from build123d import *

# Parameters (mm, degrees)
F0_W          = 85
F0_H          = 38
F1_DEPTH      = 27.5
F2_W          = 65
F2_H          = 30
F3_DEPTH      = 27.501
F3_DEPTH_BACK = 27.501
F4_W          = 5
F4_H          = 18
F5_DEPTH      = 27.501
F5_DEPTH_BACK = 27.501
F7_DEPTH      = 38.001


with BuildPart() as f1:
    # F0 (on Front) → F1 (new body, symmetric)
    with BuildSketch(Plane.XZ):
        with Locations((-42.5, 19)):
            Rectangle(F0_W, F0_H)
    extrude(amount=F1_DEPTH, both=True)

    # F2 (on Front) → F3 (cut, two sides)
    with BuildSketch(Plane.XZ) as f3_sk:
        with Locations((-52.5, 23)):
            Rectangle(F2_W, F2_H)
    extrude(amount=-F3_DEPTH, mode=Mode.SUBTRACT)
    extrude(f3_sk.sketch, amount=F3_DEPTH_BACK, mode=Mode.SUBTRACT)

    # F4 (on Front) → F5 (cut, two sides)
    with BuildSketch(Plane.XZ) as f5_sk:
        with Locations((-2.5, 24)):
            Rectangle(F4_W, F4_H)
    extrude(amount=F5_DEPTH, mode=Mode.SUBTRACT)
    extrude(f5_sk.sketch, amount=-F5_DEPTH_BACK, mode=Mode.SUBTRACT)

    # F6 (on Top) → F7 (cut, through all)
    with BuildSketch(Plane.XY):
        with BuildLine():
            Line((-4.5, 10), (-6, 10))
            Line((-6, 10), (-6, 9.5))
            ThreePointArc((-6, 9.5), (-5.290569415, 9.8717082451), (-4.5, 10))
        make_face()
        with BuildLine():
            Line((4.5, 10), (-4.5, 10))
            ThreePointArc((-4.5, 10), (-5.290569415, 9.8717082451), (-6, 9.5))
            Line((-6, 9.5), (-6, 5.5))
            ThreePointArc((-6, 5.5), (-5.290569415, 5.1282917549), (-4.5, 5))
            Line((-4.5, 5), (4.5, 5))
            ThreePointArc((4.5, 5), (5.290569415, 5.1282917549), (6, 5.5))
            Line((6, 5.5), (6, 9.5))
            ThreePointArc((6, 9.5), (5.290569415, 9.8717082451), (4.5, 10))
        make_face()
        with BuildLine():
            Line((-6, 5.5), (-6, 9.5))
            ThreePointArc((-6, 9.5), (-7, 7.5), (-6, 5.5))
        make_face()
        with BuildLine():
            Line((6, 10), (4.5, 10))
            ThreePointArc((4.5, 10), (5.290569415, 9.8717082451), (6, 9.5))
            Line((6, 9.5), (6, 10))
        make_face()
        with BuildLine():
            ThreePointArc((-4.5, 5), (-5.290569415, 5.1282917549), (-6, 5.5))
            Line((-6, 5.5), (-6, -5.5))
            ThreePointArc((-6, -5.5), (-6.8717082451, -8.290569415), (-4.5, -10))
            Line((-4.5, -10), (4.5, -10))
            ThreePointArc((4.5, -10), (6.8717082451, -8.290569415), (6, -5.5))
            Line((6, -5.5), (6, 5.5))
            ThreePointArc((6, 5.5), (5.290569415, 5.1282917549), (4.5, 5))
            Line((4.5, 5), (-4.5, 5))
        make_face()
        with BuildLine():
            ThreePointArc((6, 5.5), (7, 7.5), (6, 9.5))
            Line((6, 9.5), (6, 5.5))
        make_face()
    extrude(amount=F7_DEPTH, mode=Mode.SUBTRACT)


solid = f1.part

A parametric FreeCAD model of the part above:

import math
import FreeCAD as App
import Part
import Sketcher
from FreeCAD import Vector


def add_polygon(sketch, points):
    """Adds a closed chain of lines whose ends are joined by coincident constraints."""
    first, n = sketch.GeometryCount, len(points)
    for a, b in zip(points, points[1:] + points[:1]):
        sketch.addGeometry(Part.LineSegment(App.Vector(*a, 0), App.Vector(*b, 0)), False)
    for i in range(n):
        sketch.addConstraint(Sketcher.Constraint("Coincident", first + i, 2, first + (i + 1) % n, 1))

doc = App.newDocument("Part")
params = doc.addObject("Spreadsheet::Sheet", "Params")
for row, (alias, value) in enumerate([
    ("sketch1_width", "85 mm"),
    ("sketch1_height", "38 mm"),
    ("pad1_length", "55 mm"),
    ("sketch2_width", "65 mm"),
    ("sketch2_height", "30 mm"),
    ("sketch3_width", "5 mm"),
    ("sketch3_height", "18 mm"),
    ("sketch4_radius", "2.5 mm"),
    ("sketch4_width", "9 mm"),
    ("sketch4_width2", "12 mm"),
    ("sketch4_height", "11 mm"),
    ("sketch4_height2", "0.5 mm"),
], start=1):
    params.set(f"A{row}", alias)
    params.set(f"B{row}", "=" + value)
    params.setAlias(f"B{row}", alias)

body = doc.addObject("PartDesign::Body", "Body")

# Sketch on XZ plane
sketch1 = body.newObject("Sketcher::SketchObject", "Sketch")
sketch1.AttachmentSupport = (doc.getObject("XZ_Plane"), [""])
sketch1.MapMode = "FlatFace"
add_polygon(sketch1, [(-85, 38), (-85, 0), (0, 0), (0, 38)])  # lines 0-3
sketch1.addConstraint([
    Sketcher.Constraint("Vertical", 0),
    Sketcher.Constraint("Horizontal", 1),
    Sketcher.Constraint("Vertical", 2),
    Sketcher.Constraint("Horizontal", 3),
    Sketcher.Constraint("Coincident", 1, 2, -1, 1),
    Sketcher.Constraint("DistanceX", 1, 1, 1, 2, 85.0),
    Sketcher.Constraint("DistanceY", 0, 2, 0, 1, 38.0),
])
sketch1.setExpression("Constraints[9]", "Params.sketch1_width")
sketch1.setExpression("Constraints[10]", "Params.sketch1_height")
pad1 = body.newObject("PartDesign::Pad", "Pad")
pad1.Profile = sketch1
pad1.setExpression("Length", "Params.pad1_length")
pad1.Midplane = True

# Sketch on XZ plane
sketch2 = body.newObject("Sketcher::SketchObject", "Sketch001")
sketch2.AttachmentSupport = (doc.getObject("XZ_Plane"), [""])
sketch2.MapMode = "FlatFace"
add_polygon(sketch2, [(-85, 38), (-85, 8), (-20, 8), (-20, 38)])  # lines 0-3
sketch2.addConstraint([
    Sketcher.Constraint("Vertical", 0),
    Sketcher.Constraint("Horizontal", 1),
    Sketcher.Constraint("Vertical", 2),
    Sketcher.Constraint("Horizontal", 3),
    Sketcher.Constraint("DistanceX", 1, 1, 1, 2, 65.0),
    Sketcher.Constraint("DistanceY", 0, 2, 0, 1, 30.0),
    Sketcher.Constraint("DistanceX", 0, 2, -1, 1, 85.0),
    Sketcher.Constraint("DistanceY", -1, 1, 0, 2, 8.0),
])
sketch2.setExpression("Constraints[8]", "Params.sketch2_width")
sketch2.setExpression("Constraints[9]", "Params.sketch2_height")
pocket1 = body.newObject("PartDesign::Pocket", "Pocket")
pocket1.Profile = sketch2
pocket1.Type = "ThroughAll"
pocket1.Midplane = True

# Sketch on XZ plane
sketch3 = body.newObject("Sketcher::SketchObject", "Sketch002")
sketch3.AttachmentSupport = (doc.getObject("XZ_Plane"), [""])
sketch3.MapMode = "FlatFace"
add_polygon(sketch3, [(-5, 33), (-5, 15), (0, 15), (0, 33)])  # lines 0-3
sketch3.addConstraint([
    Sketcher.Constraint("Vertical", 0),
    Sketcher.Constraint("Horizontal", 1),
    Sketcher.Constraint("Vertical", 2),
    Sketcher.Constraint("Horizontal", 3),
    Sketcher.Constraint("PointOnObject", 1, 2, -2),
    Sketcher.Constraint("DistanceX", 1, 1, 1, 2, 5.0),
    Sketcher.Constraint("DistanceY", 0, 2, 0, 1, 18.0),
    Sketcher.Constraint("DistanceY", -1, 1, 0, 2, 15.0),
])
sketch3.setExpression("Constraints[9]", "Params.sketch3_width")
sketch3.setExpression("Constraints[10]", "Params.sketch3_height")
pocket2 = body.newObject("PartDesign::Pocket", "Pocket001")
pocket2.Profile = sketch3
pocket2.Type = "ThroughAll"
pocket2.Midplane = True

# Sketch on XY plane
sketch4 = body.newObject("Sketcher::SketchObject", "Sketch003")
sketch4.AttachmentSupport = (doc.getObject("XY_Plane"), [""])
sketch4.MapMode = "FlatFace"
sketch4.addGeometry([
    Part.LineSegment(Vector(-6, 10, 0), Vector(-6, 9.5, 0)),  # 0
    Part.ArcOfCircle(Part.Circle(Vector(-4.5, 7.5, 0), Vector(0, 0, 1), 2.5), math.radians(127), math.radians(233)),  # 1
    Part.LineSegment(Vector(-6, 5.5, 0), Vector(-6, -5.5, 0)),  # 2
    Part.ArcOfCircle(Part.Circle(Vector(-4.5, -7.5, 0), Vector(0, 0, 1), 2.5), math.radians(127), math.radians(270)),  # 3
    Part.LineSegment(Vector(-4.5, -10, 0), Vector(4.5, -10, 0)),  # 4
    Part.ArcOfCircle(Part.Circle(Vector(4.5, -7.5, 0), Vector(0, 0, 1), 2.5), math.radians(-90), math.radians(53)),  # 5
    Part.LineSegment(Vector(6, -5.5, 0), Vector(6, 5.5, 0)),  # 6
    Part.ArcOfCircle(Part.Circle(Vector(4.5, 7.5, 0), Vector(0, 0, 1), 2.5), math.radians(-53), math.radians(53)),  # 7
    Part.LineSegment(Vector(6, 9.5, 0), Vector(6, 10, 0)),  # 8
    Part.LineSegment(Vector(6, 10, 0), Vector(-6, 10, 0)),  # 9
], False)
sketch4.addConstraint([
    Sketcher.Constraint("Coincident", 0, 2, 1, 1),
    Sketcher.Constraint("Coincident", 1, 2, 2, 1),
    Sketcher.Constraint("Coincident", 2, 2, 3, 1),
    Sketcher.Constraint("Tangent", 3, 2, 4, 1),
    Sketcher.Constraint("Tangent", 4, 2, 5, 1),
    Sketcher.Constraint("Coincident", 5, 2, 6, 1),
    Sketcher.Constraint("Coincident", 6, 2, 7, 1),
    Sketcher.Constraint("Coincident", 7, 2, 8, 1),
    Sketcher.Constraint("Coincident", 8, 2, 9, 1),
    Sketcher.Constraint("Coincident", 9, 2, 0, 1),
    Sketcher.Constraint("Vertical", 0),
    Sketcher.Constraint("Vertical", 2),
    Sketcher.Constraint("Horizontal", 4),
    Sketcher.Constraint("Vertical", 6),
    Sketcher.Constraint("Vertical", 8),
    Sketcher.Constraint("Horizontal", 9),
    Sketcher.Constraint("Equal", 1, 3),
    Sketcher.Constraint("Equal", 3, 5),
    Sketcher.Constraint("Equal", 5, 7),
    Sketcher.Constraint("Symmetric", 1, 3, 5, 3, -1, 1),
    Sketcher.Constraint("Symmetric", 3, 3, 7, 3, -1, 1),
    Sketcher.Constraint("Symmetric", 2, 2, 5, 2, -2),
    Sketcher.Constraint("Horizontal", 0, 2, 7, 2),
    Sketcher.Constraint("Vertical", 0, 2, 1, 2),
    Sketcher.Constraint("Radius", 1, 2.5),
    Sketcher.Constraint("DistanceX", 4, 1, 4, 2, 9.0),
    Sketcher.Constraint("DistanceX", 9, 2, 9, 1, 12.0),
    Sketcher.Constraint("DistanceY", 2, 2, 2, 1, 11.0),
    Sketcher.Constraint("DistanceY", 0, 2, 0, 1, 0.5),
])
sketch4.setExpression("Constraints[24]", "Params.sketch4_radius")
sketch4.setExpression("Constraints[25]", "Params.sketch4_width")
sketch4.setExpression("Constraints[26]", "Params.sketch4_width2")
sketch4.setExpression("Constraints[27]", "Params.sketch4_height")
sketch4.setExpression("Constraints[28]", "Params.sketch4_height2")
pocket3 = body.newObject("PartDesign::Pocket", "Pocket002")
pocket3.Profile = sketch4
pocket3.Type = "ThroughAll"
pocket3.Reversed = True

doc.recompute()
